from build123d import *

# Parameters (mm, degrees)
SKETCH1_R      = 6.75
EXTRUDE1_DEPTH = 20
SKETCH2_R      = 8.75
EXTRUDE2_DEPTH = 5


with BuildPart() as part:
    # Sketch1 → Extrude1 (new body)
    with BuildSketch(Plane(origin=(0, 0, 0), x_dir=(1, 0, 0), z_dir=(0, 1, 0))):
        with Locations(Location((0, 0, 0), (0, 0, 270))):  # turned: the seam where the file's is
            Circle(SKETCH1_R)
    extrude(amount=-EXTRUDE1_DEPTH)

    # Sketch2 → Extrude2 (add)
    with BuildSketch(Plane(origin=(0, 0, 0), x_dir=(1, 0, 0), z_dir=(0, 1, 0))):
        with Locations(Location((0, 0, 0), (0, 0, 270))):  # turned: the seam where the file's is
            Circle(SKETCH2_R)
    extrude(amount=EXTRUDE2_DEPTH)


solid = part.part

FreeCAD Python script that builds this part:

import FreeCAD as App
import Part
import Sketcher

V = App.Vector

doc = App.newDocument("Part")
body = doc.addObject("PartDesign::Body", "Body")

# Sketch on XZ plane
sketch1 = doc.addObject("Sketcher::SketchObject", "Sketch")
body.addObject(sketch1)
sketch1.AttachmentSupport = (doc.XZ_Plane, [""])
sketch1.MapMode = "FlatFace"
sketch1.addGeometry(Part.Circle(V(0, 0, 0), V(0, 0, 1), 6.75), False)
sketch1.addConstraint(Sketcher.Constraint("Coincident", 0, 3, -1, 1))
sketch1.addConstraint(Sketcher.Constraint("Diameter", 0, 13.5))
pad1 = doc.addObject("PartDesign::Pad", "Pad")
body.addObject(pad1)
pad1.Profile = sketch1
pad1.Length = 20

# Sketch on XZ plane
sketch2 = doc.addObject("Sketcher::SketchObject", "Sketch001")
body.addObject(sketch2)
sketch2.AttachmentSupport = (doc.XZ_Plane, [""])
sketch2.MapMode = "FlatFace"
sketch2.addGeometry(Part.Circle(V(0, 0, 0), V(0, 0, 1), 8.75), False)
sketch2.addConstraint(Sketcher.Constraint("Coincident", 0, 3, -1, 1))
sketch2.addConstraint(Sketcher.Constraint("Diameter", 0, 17.5))
pad2 = doc.addObject("PartDesign::Pad", "Pad001")
body.addObject(pad2)
pad2.Profile = sketch2
pad2.Length = 5
pad2.Reversed = True

doc.recompute()
